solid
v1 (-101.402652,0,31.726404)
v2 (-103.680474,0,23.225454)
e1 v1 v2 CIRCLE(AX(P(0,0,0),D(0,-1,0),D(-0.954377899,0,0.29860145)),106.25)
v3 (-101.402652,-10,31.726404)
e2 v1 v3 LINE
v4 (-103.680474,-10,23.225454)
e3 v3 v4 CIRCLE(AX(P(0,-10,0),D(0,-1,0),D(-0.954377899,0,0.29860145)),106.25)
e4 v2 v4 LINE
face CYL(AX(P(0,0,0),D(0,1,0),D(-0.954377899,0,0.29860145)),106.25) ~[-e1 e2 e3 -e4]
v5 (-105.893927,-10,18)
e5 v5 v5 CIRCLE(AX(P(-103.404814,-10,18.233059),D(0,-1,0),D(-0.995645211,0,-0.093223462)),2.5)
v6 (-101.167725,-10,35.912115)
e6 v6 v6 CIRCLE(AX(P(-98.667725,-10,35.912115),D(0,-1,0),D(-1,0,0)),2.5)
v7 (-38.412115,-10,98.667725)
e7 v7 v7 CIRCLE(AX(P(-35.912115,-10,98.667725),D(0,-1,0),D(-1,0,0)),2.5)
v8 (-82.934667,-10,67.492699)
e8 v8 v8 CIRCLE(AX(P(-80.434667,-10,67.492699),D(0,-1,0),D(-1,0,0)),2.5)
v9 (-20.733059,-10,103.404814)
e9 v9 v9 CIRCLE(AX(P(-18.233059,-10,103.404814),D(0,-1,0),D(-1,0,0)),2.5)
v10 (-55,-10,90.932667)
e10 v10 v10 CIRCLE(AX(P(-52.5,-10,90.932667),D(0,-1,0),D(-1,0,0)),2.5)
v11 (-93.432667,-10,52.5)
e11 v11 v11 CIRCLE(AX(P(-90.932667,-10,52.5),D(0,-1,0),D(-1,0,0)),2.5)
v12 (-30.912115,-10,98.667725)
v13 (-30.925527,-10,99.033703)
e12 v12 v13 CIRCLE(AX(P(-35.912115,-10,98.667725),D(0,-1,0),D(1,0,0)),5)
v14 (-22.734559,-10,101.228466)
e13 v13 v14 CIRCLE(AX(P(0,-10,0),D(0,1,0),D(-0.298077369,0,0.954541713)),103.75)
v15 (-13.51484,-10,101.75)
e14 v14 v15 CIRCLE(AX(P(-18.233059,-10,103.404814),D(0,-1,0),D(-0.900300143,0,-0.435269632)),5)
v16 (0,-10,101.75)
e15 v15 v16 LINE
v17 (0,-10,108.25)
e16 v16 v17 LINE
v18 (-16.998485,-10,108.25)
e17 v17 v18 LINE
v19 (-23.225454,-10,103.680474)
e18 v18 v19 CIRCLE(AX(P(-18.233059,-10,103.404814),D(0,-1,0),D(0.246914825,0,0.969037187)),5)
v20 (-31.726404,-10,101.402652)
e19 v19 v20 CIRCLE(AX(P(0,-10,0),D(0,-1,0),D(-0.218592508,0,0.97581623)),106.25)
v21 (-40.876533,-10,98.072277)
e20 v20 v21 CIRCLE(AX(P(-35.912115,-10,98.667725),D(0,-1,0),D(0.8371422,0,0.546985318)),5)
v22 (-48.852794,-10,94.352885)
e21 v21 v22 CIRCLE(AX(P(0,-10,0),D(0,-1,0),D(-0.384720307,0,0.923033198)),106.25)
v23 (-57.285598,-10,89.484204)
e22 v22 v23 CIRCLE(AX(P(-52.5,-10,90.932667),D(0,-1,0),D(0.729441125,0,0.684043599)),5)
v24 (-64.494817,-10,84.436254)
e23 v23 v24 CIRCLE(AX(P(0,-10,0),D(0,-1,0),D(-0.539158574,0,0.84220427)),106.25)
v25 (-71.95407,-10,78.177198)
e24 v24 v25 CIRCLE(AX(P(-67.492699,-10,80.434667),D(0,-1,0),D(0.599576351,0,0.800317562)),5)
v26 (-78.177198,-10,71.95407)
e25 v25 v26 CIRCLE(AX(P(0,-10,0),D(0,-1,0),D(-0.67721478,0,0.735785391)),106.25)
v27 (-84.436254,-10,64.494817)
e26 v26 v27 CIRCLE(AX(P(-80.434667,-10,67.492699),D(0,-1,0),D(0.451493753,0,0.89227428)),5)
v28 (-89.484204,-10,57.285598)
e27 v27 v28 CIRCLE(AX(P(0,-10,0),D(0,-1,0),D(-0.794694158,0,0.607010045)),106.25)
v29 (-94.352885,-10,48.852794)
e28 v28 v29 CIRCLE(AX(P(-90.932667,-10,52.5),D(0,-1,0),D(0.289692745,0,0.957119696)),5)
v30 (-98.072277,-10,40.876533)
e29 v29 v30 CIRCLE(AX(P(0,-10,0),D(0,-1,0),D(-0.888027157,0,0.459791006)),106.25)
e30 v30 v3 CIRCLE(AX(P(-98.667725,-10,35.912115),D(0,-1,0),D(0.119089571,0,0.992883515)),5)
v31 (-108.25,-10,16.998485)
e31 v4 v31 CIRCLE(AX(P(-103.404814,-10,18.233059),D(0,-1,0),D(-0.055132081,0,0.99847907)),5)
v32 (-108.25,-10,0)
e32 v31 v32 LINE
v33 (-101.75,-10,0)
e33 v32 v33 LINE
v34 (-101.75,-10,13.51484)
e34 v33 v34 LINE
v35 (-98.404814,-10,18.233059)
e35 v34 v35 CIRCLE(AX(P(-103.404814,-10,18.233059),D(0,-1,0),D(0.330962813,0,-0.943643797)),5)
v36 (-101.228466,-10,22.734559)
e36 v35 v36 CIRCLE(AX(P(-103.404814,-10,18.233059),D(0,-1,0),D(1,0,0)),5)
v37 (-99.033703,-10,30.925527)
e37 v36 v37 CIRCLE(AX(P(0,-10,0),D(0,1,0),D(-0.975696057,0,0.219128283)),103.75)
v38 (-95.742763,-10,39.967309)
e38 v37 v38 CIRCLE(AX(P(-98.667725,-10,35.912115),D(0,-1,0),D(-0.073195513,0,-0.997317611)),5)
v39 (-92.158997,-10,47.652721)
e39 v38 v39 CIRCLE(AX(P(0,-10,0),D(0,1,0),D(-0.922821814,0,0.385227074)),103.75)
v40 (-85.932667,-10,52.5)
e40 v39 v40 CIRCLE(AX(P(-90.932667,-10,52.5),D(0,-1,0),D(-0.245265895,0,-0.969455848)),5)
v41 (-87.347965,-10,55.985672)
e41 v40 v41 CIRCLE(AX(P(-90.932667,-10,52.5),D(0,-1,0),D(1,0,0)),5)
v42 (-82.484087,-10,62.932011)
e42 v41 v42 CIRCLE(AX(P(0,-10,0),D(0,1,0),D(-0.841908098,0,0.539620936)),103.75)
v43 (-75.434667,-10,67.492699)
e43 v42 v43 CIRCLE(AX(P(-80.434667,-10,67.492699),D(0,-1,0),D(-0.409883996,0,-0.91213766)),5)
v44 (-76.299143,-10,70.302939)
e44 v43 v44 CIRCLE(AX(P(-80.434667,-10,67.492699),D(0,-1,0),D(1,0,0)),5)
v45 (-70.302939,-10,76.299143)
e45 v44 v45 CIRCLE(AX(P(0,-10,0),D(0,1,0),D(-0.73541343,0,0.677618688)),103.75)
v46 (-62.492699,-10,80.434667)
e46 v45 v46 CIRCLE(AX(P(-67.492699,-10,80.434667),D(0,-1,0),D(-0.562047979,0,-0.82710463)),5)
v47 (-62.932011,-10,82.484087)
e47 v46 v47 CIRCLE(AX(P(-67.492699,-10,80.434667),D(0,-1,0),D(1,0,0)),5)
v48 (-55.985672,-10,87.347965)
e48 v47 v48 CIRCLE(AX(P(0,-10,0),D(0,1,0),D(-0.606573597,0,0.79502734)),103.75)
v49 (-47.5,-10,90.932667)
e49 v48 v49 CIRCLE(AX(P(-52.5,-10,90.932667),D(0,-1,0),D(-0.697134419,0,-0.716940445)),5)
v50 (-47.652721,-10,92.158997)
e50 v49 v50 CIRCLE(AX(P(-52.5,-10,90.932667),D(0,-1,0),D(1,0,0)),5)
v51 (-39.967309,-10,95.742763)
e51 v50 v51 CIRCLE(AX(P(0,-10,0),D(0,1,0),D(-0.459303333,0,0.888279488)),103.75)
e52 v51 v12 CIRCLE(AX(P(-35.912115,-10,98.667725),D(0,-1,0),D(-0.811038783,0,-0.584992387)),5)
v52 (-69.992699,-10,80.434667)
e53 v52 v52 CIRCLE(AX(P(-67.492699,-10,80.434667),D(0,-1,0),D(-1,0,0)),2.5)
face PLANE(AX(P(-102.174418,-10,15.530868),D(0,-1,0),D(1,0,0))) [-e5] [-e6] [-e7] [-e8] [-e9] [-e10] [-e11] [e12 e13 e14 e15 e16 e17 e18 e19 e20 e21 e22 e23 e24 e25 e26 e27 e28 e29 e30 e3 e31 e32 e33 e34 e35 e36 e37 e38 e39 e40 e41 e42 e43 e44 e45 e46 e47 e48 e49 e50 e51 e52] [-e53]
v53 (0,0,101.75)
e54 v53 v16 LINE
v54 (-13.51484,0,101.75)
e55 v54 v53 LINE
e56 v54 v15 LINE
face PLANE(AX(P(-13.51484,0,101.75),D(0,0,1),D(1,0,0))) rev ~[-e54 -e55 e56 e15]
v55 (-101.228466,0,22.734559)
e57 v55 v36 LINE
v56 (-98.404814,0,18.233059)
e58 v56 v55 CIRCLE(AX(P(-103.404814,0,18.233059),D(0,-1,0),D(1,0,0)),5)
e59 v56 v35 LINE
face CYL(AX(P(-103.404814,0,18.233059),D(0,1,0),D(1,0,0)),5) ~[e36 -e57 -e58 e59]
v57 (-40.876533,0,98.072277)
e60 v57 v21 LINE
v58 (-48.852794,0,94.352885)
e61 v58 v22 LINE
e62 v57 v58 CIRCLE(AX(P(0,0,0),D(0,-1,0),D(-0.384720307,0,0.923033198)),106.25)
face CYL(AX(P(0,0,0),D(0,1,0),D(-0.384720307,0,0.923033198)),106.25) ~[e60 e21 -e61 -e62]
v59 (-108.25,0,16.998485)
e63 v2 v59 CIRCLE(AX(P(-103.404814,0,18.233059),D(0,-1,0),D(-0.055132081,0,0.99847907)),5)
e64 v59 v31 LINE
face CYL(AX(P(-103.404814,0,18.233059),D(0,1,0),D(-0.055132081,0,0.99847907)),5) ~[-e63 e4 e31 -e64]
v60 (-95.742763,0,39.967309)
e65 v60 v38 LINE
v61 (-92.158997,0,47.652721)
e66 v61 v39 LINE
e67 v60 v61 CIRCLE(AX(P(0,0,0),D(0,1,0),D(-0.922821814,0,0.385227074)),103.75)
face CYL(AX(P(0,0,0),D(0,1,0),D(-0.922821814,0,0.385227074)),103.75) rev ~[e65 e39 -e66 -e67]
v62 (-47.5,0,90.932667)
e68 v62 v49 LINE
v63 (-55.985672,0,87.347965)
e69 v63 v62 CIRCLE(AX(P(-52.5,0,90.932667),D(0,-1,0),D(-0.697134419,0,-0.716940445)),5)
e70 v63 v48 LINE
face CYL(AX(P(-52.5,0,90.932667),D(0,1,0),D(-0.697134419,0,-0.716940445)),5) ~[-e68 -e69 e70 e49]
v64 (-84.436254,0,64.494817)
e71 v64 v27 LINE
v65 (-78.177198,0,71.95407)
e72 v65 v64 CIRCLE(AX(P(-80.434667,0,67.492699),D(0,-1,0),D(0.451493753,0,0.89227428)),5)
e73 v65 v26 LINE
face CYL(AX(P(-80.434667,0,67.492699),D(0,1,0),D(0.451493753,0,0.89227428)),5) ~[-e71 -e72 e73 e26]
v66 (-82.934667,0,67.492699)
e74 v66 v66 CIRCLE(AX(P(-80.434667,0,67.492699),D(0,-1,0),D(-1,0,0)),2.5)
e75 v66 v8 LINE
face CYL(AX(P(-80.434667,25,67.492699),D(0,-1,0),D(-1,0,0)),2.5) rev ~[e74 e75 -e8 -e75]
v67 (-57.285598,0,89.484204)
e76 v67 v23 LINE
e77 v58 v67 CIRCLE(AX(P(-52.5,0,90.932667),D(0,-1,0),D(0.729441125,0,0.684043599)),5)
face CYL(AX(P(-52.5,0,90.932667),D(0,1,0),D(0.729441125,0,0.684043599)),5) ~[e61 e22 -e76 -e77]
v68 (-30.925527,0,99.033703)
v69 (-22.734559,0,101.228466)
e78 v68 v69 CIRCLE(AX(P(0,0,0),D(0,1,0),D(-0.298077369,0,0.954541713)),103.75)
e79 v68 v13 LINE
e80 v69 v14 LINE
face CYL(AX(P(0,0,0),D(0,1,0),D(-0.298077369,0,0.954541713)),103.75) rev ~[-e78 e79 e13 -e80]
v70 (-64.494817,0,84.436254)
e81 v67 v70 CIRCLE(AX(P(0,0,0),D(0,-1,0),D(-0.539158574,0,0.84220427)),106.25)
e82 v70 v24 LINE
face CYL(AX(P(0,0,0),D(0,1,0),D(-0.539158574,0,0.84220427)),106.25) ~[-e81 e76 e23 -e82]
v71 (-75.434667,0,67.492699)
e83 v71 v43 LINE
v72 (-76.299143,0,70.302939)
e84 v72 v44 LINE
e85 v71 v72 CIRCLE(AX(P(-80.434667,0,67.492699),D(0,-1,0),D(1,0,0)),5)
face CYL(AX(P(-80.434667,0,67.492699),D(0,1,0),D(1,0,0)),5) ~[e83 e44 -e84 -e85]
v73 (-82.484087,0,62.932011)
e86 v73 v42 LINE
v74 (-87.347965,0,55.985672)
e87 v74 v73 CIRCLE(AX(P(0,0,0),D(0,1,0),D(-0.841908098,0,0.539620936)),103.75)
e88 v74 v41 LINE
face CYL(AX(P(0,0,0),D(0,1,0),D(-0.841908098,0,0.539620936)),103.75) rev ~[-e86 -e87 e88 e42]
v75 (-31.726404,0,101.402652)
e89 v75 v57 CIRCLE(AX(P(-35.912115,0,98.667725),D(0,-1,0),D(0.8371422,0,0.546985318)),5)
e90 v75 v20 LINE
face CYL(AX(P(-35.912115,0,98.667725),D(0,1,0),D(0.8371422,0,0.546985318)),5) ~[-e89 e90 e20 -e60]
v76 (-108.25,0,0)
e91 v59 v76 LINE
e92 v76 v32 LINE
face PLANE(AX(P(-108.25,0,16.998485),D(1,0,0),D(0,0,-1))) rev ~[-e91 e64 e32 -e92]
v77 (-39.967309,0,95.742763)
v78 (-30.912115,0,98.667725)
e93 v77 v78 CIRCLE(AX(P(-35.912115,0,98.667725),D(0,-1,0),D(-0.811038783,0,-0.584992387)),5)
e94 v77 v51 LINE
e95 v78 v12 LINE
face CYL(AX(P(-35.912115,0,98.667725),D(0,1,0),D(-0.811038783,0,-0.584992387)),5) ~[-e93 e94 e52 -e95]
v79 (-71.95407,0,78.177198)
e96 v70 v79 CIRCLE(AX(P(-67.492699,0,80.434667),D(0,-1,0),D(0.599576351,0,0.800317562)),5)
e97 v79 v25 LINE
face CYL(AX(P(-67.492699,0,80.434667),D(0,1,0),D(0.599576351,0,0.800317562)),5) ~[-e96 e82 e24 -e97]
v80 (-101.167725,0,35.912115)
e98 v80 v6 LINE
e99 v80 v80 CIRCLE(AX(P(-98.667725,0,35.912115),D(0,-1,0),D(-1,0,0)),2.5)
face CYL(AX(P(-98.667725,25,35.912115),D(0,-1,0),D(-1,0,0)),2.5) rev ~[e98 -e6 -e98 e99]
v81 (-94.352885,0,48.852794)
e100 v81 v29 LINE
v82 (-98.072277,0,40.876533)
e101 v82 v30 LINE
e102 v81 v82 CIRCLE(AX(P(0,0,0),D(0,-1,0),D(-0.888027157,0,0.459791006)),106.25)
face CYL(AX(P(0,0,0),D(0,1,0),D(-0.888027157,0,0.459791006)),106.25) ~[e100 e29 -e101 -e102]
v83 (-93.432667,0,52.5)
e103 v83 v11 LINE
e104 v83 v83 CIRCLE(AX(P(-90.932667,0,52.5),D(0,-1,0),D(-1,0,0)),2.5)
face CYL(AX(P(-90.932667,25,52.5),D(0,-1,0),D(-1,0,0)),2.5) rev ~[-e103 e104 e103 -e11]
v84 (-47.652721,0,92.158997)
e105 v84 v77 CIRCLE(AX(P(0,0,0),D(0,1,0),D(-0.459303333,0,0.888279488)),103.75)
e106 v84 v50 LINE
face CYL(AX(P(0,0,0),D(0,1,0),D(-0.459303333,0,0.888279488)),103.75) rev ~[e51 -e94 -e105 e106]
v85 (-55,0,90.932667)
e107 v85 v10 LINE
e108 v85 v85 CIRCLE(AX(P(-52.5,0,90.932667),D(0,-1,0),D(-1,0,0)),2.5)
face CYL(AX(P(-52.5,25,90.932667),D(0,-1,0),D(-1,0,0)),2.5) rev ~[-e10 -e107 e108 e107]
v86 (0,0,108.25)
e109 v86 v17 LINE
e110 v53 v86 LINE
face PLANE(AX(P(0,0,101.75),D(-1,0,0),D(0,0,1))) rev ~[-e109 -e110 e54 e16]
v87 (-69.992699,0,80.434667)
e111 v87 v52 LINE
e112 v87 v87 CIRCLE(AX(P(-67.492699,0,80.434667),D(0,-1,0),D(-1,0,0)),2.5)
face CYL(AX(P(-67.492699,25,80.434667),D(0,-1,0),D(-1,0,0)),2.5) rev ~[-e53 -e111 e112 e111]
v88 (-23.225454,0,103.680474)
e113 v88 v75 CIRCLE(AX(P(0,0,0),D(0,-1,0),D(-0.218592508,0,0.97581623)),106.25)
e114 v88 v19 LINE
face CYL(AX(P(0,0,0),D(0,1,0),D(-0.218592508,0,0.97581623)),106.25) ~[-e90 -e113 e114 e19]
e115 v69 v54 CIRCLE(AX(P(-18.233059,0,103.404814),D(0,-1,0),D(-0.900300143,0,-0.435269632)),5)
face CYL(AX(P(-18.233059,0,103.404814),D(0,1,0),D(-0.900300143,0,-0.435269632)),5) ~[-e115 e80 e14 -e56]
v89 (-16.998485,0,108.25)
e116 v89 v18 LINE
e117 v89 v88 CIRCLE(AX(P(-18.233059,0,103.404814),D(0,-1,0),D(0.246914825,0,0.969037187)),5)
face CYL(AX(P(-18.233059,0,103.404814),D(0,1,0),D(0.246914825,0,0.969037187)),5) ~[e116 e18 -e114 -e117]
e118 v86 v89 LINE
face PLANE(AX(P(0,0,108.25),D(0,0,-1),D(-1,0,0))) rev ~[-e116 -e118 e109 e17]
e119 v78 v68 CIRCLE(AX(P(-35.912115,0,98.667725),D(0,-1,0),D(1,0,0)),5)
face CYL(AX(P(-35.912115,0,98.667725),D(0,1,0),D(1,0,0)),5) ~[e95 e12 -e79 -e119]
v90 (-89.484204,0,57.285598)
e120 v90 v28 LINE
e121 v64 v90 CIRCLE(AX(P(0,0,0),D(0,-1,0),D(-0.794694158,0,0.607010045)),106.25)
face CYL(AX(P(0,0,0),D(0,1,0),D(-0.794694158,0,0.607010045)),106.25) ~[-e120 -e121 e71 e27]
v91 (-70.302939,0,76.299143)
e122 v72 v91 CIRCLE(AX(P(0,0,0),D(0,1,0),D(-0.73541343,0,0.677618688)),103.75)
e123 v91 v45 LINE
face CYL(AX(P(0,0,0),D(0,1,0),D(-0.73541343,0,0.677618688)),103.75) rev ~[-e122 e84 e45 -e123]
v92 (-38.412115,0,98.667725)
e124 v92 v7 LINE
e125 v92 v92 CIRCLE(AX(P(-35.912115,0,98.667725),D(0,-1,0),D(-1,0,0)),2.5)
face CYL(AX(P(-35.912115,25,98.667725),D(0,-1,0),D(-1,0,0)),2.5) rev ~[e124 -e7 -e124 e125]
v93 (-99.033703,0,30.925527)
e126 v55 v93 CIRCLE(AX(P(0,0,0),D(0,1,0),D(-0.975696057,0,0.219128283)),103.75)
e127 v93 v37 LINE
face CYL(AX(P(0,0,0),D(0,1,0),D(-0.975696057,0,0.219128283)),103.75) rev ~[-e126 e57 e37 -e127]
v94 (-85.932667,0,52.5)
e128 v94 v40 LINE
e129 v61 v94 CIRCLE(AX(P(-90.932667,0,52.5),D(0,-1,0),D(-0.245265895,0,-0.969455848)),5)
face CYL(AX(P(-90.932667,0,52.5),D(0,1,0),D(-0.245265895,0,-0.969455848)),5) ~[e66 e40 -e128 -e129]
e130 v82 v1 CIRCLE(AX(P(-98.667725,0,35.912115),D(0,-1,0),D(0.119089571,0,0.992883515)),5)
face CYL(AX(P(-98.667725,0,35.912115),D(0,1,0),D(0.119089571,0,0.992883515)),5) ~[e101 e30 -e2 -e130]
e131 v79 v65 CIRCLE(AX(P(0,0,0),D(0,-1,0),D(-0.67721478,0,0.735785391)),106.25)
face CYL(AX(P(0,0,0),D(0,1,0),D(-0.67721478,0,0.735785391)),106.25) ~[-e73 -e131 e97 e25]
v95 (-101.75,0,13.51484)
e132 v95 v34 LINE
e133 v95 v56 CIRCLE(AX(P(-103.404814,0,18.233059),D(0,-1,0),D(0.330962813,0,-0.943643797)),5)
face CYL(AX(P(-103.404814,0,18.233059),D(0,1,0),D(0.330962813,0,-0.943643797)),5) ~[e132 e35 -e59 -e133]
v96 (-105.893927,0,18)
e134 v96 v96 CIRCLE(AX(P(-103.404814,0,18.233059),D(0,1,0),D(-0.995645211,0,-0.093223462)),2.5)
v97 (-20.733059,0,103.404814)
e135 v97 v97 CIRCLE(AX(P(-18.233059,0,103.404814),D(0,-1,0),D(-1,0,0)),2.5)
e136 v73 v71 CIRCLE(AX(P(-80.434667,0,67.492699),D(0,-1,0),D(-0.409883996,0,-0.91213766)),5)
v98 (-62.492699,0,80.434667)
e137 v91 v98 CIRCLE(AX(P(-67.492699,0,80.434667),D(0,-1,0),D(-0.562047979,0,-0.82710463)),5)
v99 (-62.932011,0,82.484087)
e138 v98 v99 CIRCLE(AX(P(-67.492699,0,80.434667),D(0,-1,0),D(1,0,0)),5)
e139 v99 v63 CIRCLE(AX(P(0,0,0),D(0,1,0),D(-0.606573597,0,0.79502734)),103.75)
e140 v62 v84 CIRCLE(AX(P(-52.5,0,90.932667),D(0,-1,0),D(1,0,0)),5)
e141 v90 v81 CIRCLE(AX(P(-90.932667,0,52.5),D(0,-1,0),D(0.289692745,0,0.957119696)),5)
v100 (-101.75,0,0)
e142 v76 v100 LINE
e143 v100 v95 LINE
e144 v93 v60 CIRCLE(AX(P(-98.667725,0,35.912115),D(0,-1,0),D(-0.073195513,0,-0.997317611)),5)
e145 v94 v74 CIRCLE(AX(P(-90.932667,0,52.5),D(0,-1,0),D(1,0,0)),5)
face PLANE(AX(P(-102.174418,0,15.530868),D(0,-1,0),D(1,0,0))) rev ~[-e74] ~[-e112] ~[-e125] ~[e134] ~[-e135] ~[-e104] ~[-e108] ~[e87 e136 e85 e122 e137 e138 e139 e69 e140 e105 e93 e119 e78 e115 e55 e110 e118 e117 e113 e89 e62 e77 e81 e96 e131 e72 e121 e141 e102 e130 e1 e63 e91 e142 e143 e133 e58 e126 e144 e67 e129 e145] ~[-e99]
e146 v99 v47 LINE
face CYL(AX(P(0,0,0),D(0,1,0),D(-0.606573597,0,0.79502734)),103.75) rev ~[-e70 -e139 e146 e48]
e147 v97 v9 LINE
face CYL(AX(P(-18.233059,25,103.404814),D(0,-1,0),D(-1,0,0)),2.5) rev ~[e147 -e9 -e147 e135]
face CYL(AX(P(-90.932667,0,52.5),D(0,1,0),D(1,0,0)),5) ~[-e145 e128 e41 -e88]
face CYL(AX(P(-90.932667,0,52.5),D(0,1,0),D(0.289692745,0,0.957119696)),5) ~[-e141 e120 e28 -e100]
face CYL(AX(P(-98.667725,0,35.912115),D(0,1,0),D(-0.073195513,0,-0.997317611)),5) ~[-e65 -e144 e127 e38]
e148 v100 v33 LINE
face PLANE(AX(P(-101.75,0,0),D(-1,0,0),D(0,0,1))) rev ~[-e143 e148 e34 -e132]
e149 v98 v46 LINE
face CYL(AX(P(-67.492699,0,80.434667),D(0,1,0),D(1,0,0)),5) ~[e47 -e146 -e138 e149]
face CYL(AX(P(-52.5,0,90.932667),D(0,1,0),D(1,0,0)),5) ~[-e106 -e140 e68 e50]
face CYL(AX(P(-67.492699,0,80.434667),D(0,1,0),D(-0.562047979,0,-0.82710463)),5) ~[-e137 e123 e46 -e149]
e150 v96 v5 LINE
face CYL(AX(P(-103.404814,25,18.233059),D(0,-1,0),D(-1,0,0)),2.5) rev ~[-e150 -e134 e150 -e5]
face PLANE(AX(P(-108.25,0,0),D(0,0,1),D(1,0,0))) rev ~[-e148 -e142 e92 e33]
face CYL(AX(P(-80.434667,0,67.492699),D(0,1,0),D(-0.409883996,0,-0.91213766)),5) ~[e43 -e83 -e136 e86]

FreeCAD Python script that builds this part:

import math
import FreeCAD as App
import Part
import Sketcher


def add_polygon(sketch, points):
    """Adds a closed chain of lines whose ends are joined by coincident constraints."""
    first, n = sketch.GeometryCount, len(points)
    for a, b in zip(points, points[1:] + points[:1]):
        sketch.addGeometry(Part.LineSegment(App.Vector(*a, 0), App.Vector(*b, 0)), False)
    for i in range(n):
        sketch.addConstraint(Sketcher.Constraint("Coincident", first + i, 2, first + (i + 1) % n, 1))

doc = App.newDocument("Part")
body = doc.addObject("PartDesign::Body", "Body")

# Sketch on XZ plane
sketch1 = body.newObject("Sketcher::SketchObject", "Sketch")
sketch1.AttachmentSupport = (doc.getObject("XZ_Plane"), [""])
sketch1.MapMode = "FlatFace"
sketch1.addGeometry([
    Part.LineSegment(App.Vector(0, 108.25, 0), App.Vector(-17, 108.25, 0)),  # 0
    Part.ArcOfCircle(Part.Circle(App.Vector(-18.23, 103.4, 0), App.Vector(0, 0, 1), 5), math.radians(76), math.radians(177)),  # 1
    Part.ArcOfCircle(Part.Circle(App.Vector(0, 0, 0), App.Vector(0, 0, 1), 106.25), math.radians(102.63), math.radians(107.37)),  # 2
    Part.ArcOfCircle(Part.Circle(App.Vector(-35.91, 98.67, 0), App.Vector(0, 0, 1), 5), math.radians(33), math.radians(187)),  # 3
    Part.ArcOfCircle(Part.Circle(App.Vector(0, 0, 0), App.Vector(0, 0, 1), 106.25), math.radians(112.63), math.radians(117.37)),  # 4
    Part.ArcOfCircle(Part.Circle(App.Vector(-52.5, 90.93, 0), App.Vector(0, 0, 1), 5), math.radians(43), math.radians(197)),  # 5
    Part.ArcOfCircle(Part.Circle(App.Vector(0, 0, 0), App.Vector(0, 0, 1), 106.25), math.radians(122.63), math.radians(127.37)),  # 6
    Part.ArcOfCircle(Part.Circle(App.Vector(-67.49, 80.43, 0), App.Vector(0, 0, 1), 5), math.radians(53), math.radians(207)),  # 7
    Part.ArcOfCircle(Part.Circle(App.Vector(0, 0, 0), App.Vector(0, 0, 1), 106.25), math.radians(132.63), math.radians(137.37)),  # 8
    Part.ArcOfCircle(Part.Circle(App.Vector(-80.43, 67.49, 0), App.Vector(0, 0, 1), 5), math.radians(63), math.radians(217)),  # 9
    Part.ArcOfCircle(Part.Circle(App.Vector(0, 0, 0), App.Vector(0, 0, 1), 106.25), math.radians(142.63), math.radians(147.37)),  # 10
    Part.ArcOfCircle(Part.Circle(App.Vector(-90.93, 52.5, 0), App.Vector(0, 0, 1), 5), math.radians(73), math.radians(227)),  # 11
    Part.ArcOfCircle(Part.Circle(App.Vector(0, 0, 0), App.Vector(0, 0, 1), 106.25), math.radians(152.63), math.radians(157.37)),  # 12
    Part.ArcOfCircle(Part.Circle(App.Vector(-98.67, 35.91, 0), App.Vector(0, 0, 1), 5), math.radians(83), math.radians(237)),  # 13
    Part.ArcOfCircle(Part.Circle(App.Vector(0, 0, 0), App.Vector(0, 0, 1), 106.25), math.radians(162.63), math.radians(167.37)),  # 14
    Part.ArcOfCircle(Part.Circle(App.Vector(-103.4, 18.23, 0), App.Vector(0, 0, 1), 5), math.radians(93), math.radians(194)),  # 15
    Part.LineSegment(App.Vector(-108.25, 17, 0), App.Vector(-108.25, 0, 0)),  # 16
    Part.LineSegment(App.Vector(-108.25, 0, 0), App.Vector(-101.75, 0, 0)),  # 17
    Part.LineSegment(App.Vector(-101.75, 0, 0), App.Vector(-101.75, 13.51, 0)),  # 18
    Part.ArcOfCircle(Part.Circle(App.Vector(-103.4, 18.23, 0), App.Vector(0, 0, 1), 5), math.radians(-71), math.radians(0)),  # 19
    Part.ArcOfCircle(Part.Circle(App.Vector(-103.4, 18.23, 0), App.Vector(0, 0, 1), 5), math.radians(0), math.radians(64)),  # 20
    Part.ArcOfCircle(Part.Circle(App.Vector(0, 0, 0), App.Vector(0, 0, 1), 103.75), math.radians(162.66), math.radians(167.34)),  # 21
    Part.ArcOfCircle(Part.Circle(App.Vector(-98.67, 35.91, 0), App.Vector(0, 0, 1), 5), math.radians(-94), math.radians(54)),  # 22
    Part.ArcOfCircle(Part.Circle(App.Vector(0, 0, 0), App.Vector(0, 0, 1), 103.75), math.radians(152.66), math.radians(157.34)),  # 23
    Part.ArcOfCircle(Part.Circle(App.Vector(-90.93, 52.5, 0), App.Vector(0, 0, 1), 5), math.radians(-104), math.radians(0)),  # 24
    Part.ArcOfCircle(Part.Circle(App.Vector(-90.93, 52.5, 0), App.Vector(0, 0, 1), 5), math.radians(0), math.radians(44)),  # 25
    Part.ArcOfCircle(Part.Circle(App.Vector(0, 0, 0), App.Vector(0, 0, 1), 103.75), math.radians(142.66), math.radians(147.34)),  # 26
    Part.ArcOfCircle(Part.Circle(App.Vector(-80.43, 67.49, 0), App.Vector(0, 0, 1), 5), math.radians(-114), math.radians(0)),  # 27
    Part.ArcOfCircle(Part.Circle(App.Vector(-80.43, 67.49, 0), App.Vector(0, 0, 1), 5), math.radians(0), math.radians(34)),  # 28
    Part.ArcOfCircle(Part.Circle(App.Vector(0, 0, 0), App.Vector(0, 0, 1), 103.75), math.radians(132.66), math.radians(137.34)),  # 29
    Part.ArcOfCircle(Part.Circle(App.Vector(-67.49, 80.43, 0), App.Vector(0, 0, 1), 5), math.radians(-124), math.radians(0)),  # 30
    Part.ArcOfCircle(Part.Circle(App.Vector(-67.49, 80.43, 0), App.Vector(0, 0, 1), 5), math.radians(0), math.radians(24)),  # 31
    Part.ArcOfCircle(Part.Circle(App.Vector(0, 0, 0), App.Vector(0, 0, 1), 103.75), math.radians(122.66), math.radians(127.34)),  # 32
    Part.ArcOfCircle(Part.Circle(App.Vector(-52.5, 90.93, 0), App.Vector(0, 0, 1), 5), math.radians(-134), math.radians(0)),  # 33
    Part.ArcOfCircle(Part.Circle(App.Vector(-52.5, 90.93, 0), App.Vector(0, 0, 1), 5), math.radians(0), math.radians(14.2)),  # 34
    Part.ArcOfCircle(Part.Circle(App.Vector(0, 0, 0), App.Vector(0, 0, 1), 103.75), math.radians(112.66), math.radians(117.34)),  # 35
    Part.ArcOfCircle(Part.Circle(App.Vector(-35.91, 98.67, 0), App.Vector(0, 0, 1), 5), math.radians(-144), math.radians(0)),  # 36
    Part.ArcOfCircle(Part.Circle(App.Vector(-35.91, 98.67, 0), App.Vector(0, 0, 1), 5), math.radians(0), math.radians(4.2)),  # 37
    Part.ArcOfCircle(Part.Circle(App.Vector(0, 0, 0), App.Vector(0, 0, 1), 103.75), math.radians(102.66), math.radians(107.34)),  # 38
    Part.ArcOfCircle(Part.Circle(App.Vector(-18.23, 103.4, 0), App.Vector(0, 0, 1), 5), math.radians(-154), math.radians(-19)),  # 39
    Part.LineSegment(App.Vector(-13.51, 101.75, 0), App.Vector(0, 101.75, 0)),  # 40
    Part.LineSegment(App.Vector(0, 101.75, 0), App.Vector(0, 108.25, 0)),  # 41
], False)
sketch1.addConstraint([
    Sketcher.Constraint("Coincident", 0, 2, 1, 1),
    Sketcher.Constraint("Coincident", 1, 2, 2, 1),
    Sketcher.Constraint("Coincident", 2, 2, 3, 1),
    Sketcher.Constraint("Coincident", 3, 2, 4, 1),
    Sketcher.Constraint("Coincident", 4, 2, 5, 1),
    Sketcher.Constraint("Coincident", 5, 2, 6, 1),
    Sketcher.Constraint("Coincident", 6, 2, 7, 1),
    Sketcher.Constraint("Coincident", 7, 2, 8, 1),
    Sketcher.Constraint("Coincident", 8, 2, 9, 1),
    Sketcher.Constraint("Coincident", 9, 2, 10, 1),
    Sketcher.Constraint("Coincident", 10, 2, 11, 1),
    Sketcher.Constraint("Coincident", 11, 2, 12, 1),
    Sketcher.Constraint("Coincident", 12, 2, 13, 1),
    Sketcher.Constraint("Coincident", 13, 2, 14, 1),
    Sketcher.Constraint("Coincident", 14, 2, 15, 1),
    Sketcher.Constraint("Coincident", 15, 2, 16, 1),
    Sketcher.Constraint("Coincident", 16, 2, 17, 1),
    Sketcher.Constraint("Coincident", 17, 2, 18, 1),
    Sketcher.Constraint("Coincident", 18, 2, 19, 1),
    Sketcher.Constraint("Tangent", 19, 2, 20, 1),
    Sketcher.Constraint("Coincident", 20, 2, 21, 2),
    Sketcher.Constraint("Coincident", 21, 1, 22, 1),
    Sketcher.Constraint("Coincident", 22, 2, 23, 2),
    Sketcher.Constraint("Coincident", 23, 1, 24, 1),
    Sketcher.Constraint("Tangent", 24, 2, 25, 1),
    Sketcher.Constraint("Coincident", 25, 2, 26, 2),
    Sketcher.Constraint("Coincident", 26, 1, 27, 1),
    Sketcher.Constraint("Tangent", 27, 2, 28, 1),
    Sketcher.Constraint("Coincident", 28, 2, 29, 2),
    Sketcher.Constraint("Coincident", 29, 1, 30, 1),
    Sketcher.Constraint("Tangent", 30, 2, 31, 1),
    Sketcher.Constraint("Coincident", 31, 2, 32, 2),
    Sketcher.Constraint("Coincident", 32, 1, 33, 1),
    Sketcher.Constraint("Tangent", 33, 2, 34, 1),
    Sketcher.Constraint("Coincident", 34, 2, 35, 2),
    Sketcher.Constraint("Coincident", 35, 1, 36, 1),
    Sketcher.Constraint("Tangent", 36, 2, 37, 1),
    Sketcher.Constraint("Coincident", 37, 2, 38, 2),
    Sketcher.Constraint("Coincident", 38, 1, 39, 1),
    Sketcher.Constraint("Coincident", 39, 2, 40, 1),
    Sketcher.Constraint("Coincident", 40, 2, 41, 1),
    Sketcher.Constraint("Coincident", 41, 2, 0, 1),
    Sketcher.Constraint("Horizontal", 0),
    Sketcher.Constraint("Vertical", 16),
    Sketcher.Constraint("Horizontal", 17),
    Sketcher.Constraint("Vertical", 18),
    Sketcher.Constraint("Horizontal", 40),
    Sketcher.Constraint("Vertical", 41),
    Sketcher.Constraint("Coincident", 2, 3, -1, 1),
    Sketcher.Constraint("Coincident", 4, 3, -1, 1),
    Sketcher.Constraint("Coincident", 6, 3, -1, 1),
    Sketcher.Constraint("Coincident", 8, 3, -1, 1),
    Sketcher.Constraint("Coincident", 10, 3, -1, 1),
    Sketcher.Constraint("Coincident", 12, 3, -1, 1),
    Sketcher.Constraint("Coincident", 14, 3, -1, 1),
    Sketcher.Constraint("Coincident", 21, 3, -1, 1),
    Sketcher.Constraint("Coincident", 23, 3, -1, 1),
    Sketcher.Constraint("Coincident", 26, 3, -1, 1),
    Sketcher.Constraint("Coincident", 29, 3, -1, 1),
    Sketcher.Constraint("Coincident", 32, 3, -1, 1),
    Sketcher.Constraint("Coincident", 35, 3, -1, 1),
    Sketcher.Constraint("Coincident", 38, 3, -1, 1),
    Sketcher.Constraint("Coincident", 19, 3, 15, 3),
    Sketcher.Constraint("Coincident", 22, 3, 13, 3),
    Sketcher.Constraint("Coincident", 24, 3, 11, 3),
    Sketcher.Constraint("Coincident", 27, 3, 9, 3),
    Sketcher.Constraint("Coincident", 30, 3, 7, 3),
    Sketcher.Constraint("Coincident", 33, 3, 5, 3),
    Sketcher.Constraint("Coincident", 36, 3, 3, 3),
    Sketcher.Constraint("Coincident", 39, 3, 1, 3),
    Sketcher.Constraint("Equal", 1, 3),
    Sketcher.Constraint("Equal", 2, 4),
    Sketcher.Constraint("Equal", 3, 5),
    Sketcher.Constraint("Equal", 4, 6),
    Sketcher.Constraint("Equal", 5, 7),
    Sketcher.Constraint("Equal", 6, 8),
    Sketcher.Constraint("Equal", 7, 9),
    Sketcher.Constraint("Equal", 8, 10),
    Sketcher.Constraint("Equal", 9, 11),
    Sketcher.Constraint("Equal", 10, 12),
    Sketcher.Constraint("Equal", 11, 13),
    Sketcher.Constraint("Equal", 12, 14),
    Sketcher.Constraint("Equal", 13, 15),
    Sketcher.Constraint("Equal", 15, 19),
    Sketcher.Constraint("Equal", 19, 20),
    Sketcher.Constraint("Equal", 20, 22),
    Sketcher.Constraint("Equal", 21, 23),
    Sketcher.Constraint("Equal", 22, 24),
    Sketcher.Constraint("Equal", 24, 25),
    Sketcher.Constraint("Equal", 23, 26),
    Sketcher.Constraint("Equal", 25, 27),
    Sketcher.Constraint("Equal", 27, 28),
    Sketcher.Constraint("Equal", 26, 29),
    Sketcher.Constraint("Equal", 28, 30),
    Sketcher.Constraint("Equal", 30, 31),
    Sketcher.Constraint("Equal", 29, 32),
    Sketcher.Constraint("Equal", 31, 33),
    Sketcher.Constraint("Equal", 33, 34),
    Sketcher.Constraint("Equal", 32, 35),
    Sketcher.Constraint("Equal", 34, 36),
    Sketcher.Constraint("Equal", 36, 37),
    Sketcher.Constraint("Equal", 35, 38),
    Sketcher.Constraint("Equal", 37, 39),
    Sketcher.Constraint("PointOnObject", 16, 2, -1),
    Sketcher.Constraint("PointOnObject", 40, 2, -2),
    Sketcher.Constraint("Horizontal", 20, 3, 19, 2),
    Sketcher.Constraint("Horizontal", 25, 3, 24, 2),
    Sketcher.Constraint("Horizontal", 28, 3, 27, 2),
    Sketcher.Constraint("Horizontal", 31, 3, 30, 2),
    Sketcher.Constraint("Horizontal", 34, 3, 33, 2),
    Sketcher.Constraint("Horizontal", 37, 3, 36, 2),
    Sketcher.Constraint("Equal", 0, 16),
    Sketcher.Constraint("Equal", 40, 18),
    Sketcher.Constraint("Equal", 17, 41),
    Sketcher.Constraint("Radius", 1, 5.0),
    Sketcher.Constraint("Radius", 2, 106.25),
    Sketcher.Constraint("Radius", 21, 103.75),
    Sketcher.Constraint("DistanceX", 17, 1, 17, 2, 6.5),
    Sketcher.Constraint("DistanceX", 5, 3, -1, 1, 52.5),
    Sketcher.Constraint("DistanceY", -1, 1, 11, 3, 52.5),
    Sketcher.Constraint("DistanceY", -1, 1, 0, 2, 108.25),
    Sketcher.Constraint("DistanceX", 15, 2, -1, 1, 108.25),
    Sketcher.Constraint("DistanceX", 40, 1, 40, 2, 13.51484),
    Sketcher.Constraint("DistanceX", 7, 3, -1, 1, 67.492699),
    Sketcher.Constraint("DistanceY", -1, 1, 9, 3, 67.492699),
    Sketcher.Constraint("DistanceX", 5, 2, -1, 1, 57.285598),
    Sketcher.Constraint("DistanceX", 0, 2, 0, 1, 16.998485),
    Sketcher.Constraint("DistanceY", -1, 1, 2, 2, 101.402652),
    Sketcher.Constraint("DistanceX", 7, 2, -1, 1, 71.95407),
    Sketcher.Constraint("DistanceY", -1, 1, 8, 2, 71.95407),
    Sketcher.Constraint("DistanceX", 13, 2, -1, 1, 101.402652),
    Sketcher.Constraint("DistanceY", -1, 1, 22, 2, 39.967309),
    Sketcher.Constraint("DistanceX", 3, 3, -1, 1, 35.912115),
    Sketcher.Constraint("DistanceX", 11, 3, -1, 1, 90.932667),
])
pad1 = body.newObject("PartDesign::Pad", "Pad")
pad1.Profile = sketch1
pad1.Length = 10

# Sketch on XZ plane
sketch2 = body.newObject("Sketcher::SketchObject", "Sketch001")
sketch2.AttachmentSupport = (doc.getObject("XZ_Plane"), [""])
sketch2.MapMode = "FlatFace"
sketch2.addGeometry([
    Part.Circle(App.Vector(-103.4, 18.2, 0), App.Vector(0, 0, 1), 2.5),  # 0
    Part.Circle(App.Vector(-98.7, 35.9, 0), App.Vector(0, 0, 1), 2.5),  # 1
    Part.Circle(App.Vector(-90.9, 52.5, 0), App.Vector(0, 0, 1), 2.5),  # 2
    Part.Circle(App.Vector(-80.4, 67.5, 0), App.Vector(0, 0, 1), 2.5),  # 3
    Part.Circle(App.Vector(-67.5, 80.4, 0), App.Vector(0, 0, 1), 2.5),  # 4
    Part.Circle(App.Vector(-52.5, 90.9, 0), App.Vector(0, 0, 1), 2.5),  # 5
    Part.Circle(App.Vector(-35.9, 98.7, 0), App.Vector(0, 0, 1), 2.5),  # 6
    Part.Circle(App.Vector(-18.2, 103.4, 0), App.Vector(0, 0, 1), 2.5),  # 7
], False)
sketch2.addConstraint([
    Sketcher.Constraint("Equal", 0, 1),
    Sketcher.Constraint("Equal", 1, 2),
    Sketcher.Constraint("Equal", 2, 3),
    Sketcher.Constraint("Equal", 3, 4),
    Sketcher.Constraint("Equal", 4, 5),
    Sketcher.Constraint("Equal", 5, 6),
    Sketcher.Constraint("Equal", 6, 7),
    Sketcher.Constraint("Diameter", 0, 5.0),
    Sketcher.Constraint("DistanceY", -1, 1, 2, 3, 52.5),
    Sketcher.Constraint("DistanceX", 5, 3, -1, 1, 52.5),
    Sketcher.Constraint("DistanceX", 2, 3, 3, 3, 10.498001),
    Sketcher.Constraint("DistanceY", 4, 3, 5, 3, 10.498001),
    Sketcher.Constraint("DistanceY", -1, 1, 3, 3, 67.492699),
    Sketcher.Constraint("DistanceX", 4, 3, -1, 1, 67.492699),
    Sketcher.Constraint("DistanceY", -1, 1, 0, 3, 18.233059),
    Sketcher.Constraint("DistanceX", 7, 3, -1, 1, 18.233059),
    Sketcher.Constraint("DistanceX", 0, 3, 1, 3, 4.737089),
    Sketcher.Constraint("DistanceX", 1, 3, 3, 3, 18.233059),
    Sketcher.Constraint("DistanceX", 2, 3, 4, 3, 23.439968),
    Sketcher.Constraint("DistanceY", 1, 3, 4, 3, 44.522551),
    Sketcher.Constraint("DistanceY", 3, 3, 5, 3, 23.439968),
    Sketcher.Constraint("DistanceY", 4, 3, 6, 3, 18.233059),
    Sketcher.Constraint("DistanceX", 3, 3, 6, 3, 44.522551),
    Sketcher.Constraint("DistanceY", 6, 3, 7, 3, 4.737089),
])
doc.recompute()
hole = body.newObject("PartDesign::Hole", "Hole")
hole.Profile = sketch2
hole.ThreadType = "None"
hole.Diameter = 5
hole.DepthType = "Dimension"
hole.Depth = 25
hole.DrillPoint = "Angled"
hole.DrillPointAngle = 118
hole.Reversed = True

# Sketch on XZ plane
sketch3 = body.newObject("Sketcher::SketchObject", "Sketch002")
sketch3.AttachmentSupport = (doc.getObject("XZ_Plane"), [""])
sketch3.MapMode = "FlatFace"
add_polygon(sketch3, [(-102, 18), (-108, 18), (-108, 0), (-102, 0)])  # lines 0-3
sketch3.addConstraint([
    Sketcher.Constraint("Horizontal", 0),
    Sketcher.Constraint("Vertical", 1),
    Sketcher.Constraint("Horizontal", 2),
    Sketcher.Constraint("Vertical", 3),
    Sketcher.Constraint("PointOnObject", 1, 2, -1),
    Sketcher.Constraint("DistanceY", 1, 2, 1, 1, 18.0),
    Sketcher.Constraint("DistanceX", 0, 2, 0, 1, 6.5),
    Sketcher.Constraint("DistanceX", 0, 2, -1, 1, 108.25),
])
pad2 = body.newObject("PartDesign::Pad", "Pad001")
pad2.Profile = sketch3
pad2.Length = 10

# Sketch on XZ plane
sketch4 = body.newObject("Sketcher::SketchObject", "Sketch003")
sketch4.AttachmentSupport = (doc.getObject("XZ_Plane"), [""])
sketch4.MapMode = "FlatFace"
sketch4.addGeometry(Part.Circle(App.Vector(-103.4, 18.2, 0), App.Vector(0, 0, 1), 2.5), False)
sketch4.addConstraint([
    Sketcher.Constraint("Diameter", 0, 5.0),
    Sketcher.Constraint("DistanceY", -1, 1, 0, 3, 18.233059),
    Sketcher.Constraint("DistanceX", 0, 3, -1, 1, 103.404814),
])
doc.recompute()
hole2 = body.newObject("PartDesign::Hole", "Hole001")
hole2.Profile = sketch4
hole2.ThreadType = "None"
hole2.Diameter = 5
hole2.DepthType = "Dimension"
hole2.Depth = 25
hole2.DrillPoint = "Angled"
hole2.DrillPointAngle = 118
hole2.Reversed = True

doc.recompute()
